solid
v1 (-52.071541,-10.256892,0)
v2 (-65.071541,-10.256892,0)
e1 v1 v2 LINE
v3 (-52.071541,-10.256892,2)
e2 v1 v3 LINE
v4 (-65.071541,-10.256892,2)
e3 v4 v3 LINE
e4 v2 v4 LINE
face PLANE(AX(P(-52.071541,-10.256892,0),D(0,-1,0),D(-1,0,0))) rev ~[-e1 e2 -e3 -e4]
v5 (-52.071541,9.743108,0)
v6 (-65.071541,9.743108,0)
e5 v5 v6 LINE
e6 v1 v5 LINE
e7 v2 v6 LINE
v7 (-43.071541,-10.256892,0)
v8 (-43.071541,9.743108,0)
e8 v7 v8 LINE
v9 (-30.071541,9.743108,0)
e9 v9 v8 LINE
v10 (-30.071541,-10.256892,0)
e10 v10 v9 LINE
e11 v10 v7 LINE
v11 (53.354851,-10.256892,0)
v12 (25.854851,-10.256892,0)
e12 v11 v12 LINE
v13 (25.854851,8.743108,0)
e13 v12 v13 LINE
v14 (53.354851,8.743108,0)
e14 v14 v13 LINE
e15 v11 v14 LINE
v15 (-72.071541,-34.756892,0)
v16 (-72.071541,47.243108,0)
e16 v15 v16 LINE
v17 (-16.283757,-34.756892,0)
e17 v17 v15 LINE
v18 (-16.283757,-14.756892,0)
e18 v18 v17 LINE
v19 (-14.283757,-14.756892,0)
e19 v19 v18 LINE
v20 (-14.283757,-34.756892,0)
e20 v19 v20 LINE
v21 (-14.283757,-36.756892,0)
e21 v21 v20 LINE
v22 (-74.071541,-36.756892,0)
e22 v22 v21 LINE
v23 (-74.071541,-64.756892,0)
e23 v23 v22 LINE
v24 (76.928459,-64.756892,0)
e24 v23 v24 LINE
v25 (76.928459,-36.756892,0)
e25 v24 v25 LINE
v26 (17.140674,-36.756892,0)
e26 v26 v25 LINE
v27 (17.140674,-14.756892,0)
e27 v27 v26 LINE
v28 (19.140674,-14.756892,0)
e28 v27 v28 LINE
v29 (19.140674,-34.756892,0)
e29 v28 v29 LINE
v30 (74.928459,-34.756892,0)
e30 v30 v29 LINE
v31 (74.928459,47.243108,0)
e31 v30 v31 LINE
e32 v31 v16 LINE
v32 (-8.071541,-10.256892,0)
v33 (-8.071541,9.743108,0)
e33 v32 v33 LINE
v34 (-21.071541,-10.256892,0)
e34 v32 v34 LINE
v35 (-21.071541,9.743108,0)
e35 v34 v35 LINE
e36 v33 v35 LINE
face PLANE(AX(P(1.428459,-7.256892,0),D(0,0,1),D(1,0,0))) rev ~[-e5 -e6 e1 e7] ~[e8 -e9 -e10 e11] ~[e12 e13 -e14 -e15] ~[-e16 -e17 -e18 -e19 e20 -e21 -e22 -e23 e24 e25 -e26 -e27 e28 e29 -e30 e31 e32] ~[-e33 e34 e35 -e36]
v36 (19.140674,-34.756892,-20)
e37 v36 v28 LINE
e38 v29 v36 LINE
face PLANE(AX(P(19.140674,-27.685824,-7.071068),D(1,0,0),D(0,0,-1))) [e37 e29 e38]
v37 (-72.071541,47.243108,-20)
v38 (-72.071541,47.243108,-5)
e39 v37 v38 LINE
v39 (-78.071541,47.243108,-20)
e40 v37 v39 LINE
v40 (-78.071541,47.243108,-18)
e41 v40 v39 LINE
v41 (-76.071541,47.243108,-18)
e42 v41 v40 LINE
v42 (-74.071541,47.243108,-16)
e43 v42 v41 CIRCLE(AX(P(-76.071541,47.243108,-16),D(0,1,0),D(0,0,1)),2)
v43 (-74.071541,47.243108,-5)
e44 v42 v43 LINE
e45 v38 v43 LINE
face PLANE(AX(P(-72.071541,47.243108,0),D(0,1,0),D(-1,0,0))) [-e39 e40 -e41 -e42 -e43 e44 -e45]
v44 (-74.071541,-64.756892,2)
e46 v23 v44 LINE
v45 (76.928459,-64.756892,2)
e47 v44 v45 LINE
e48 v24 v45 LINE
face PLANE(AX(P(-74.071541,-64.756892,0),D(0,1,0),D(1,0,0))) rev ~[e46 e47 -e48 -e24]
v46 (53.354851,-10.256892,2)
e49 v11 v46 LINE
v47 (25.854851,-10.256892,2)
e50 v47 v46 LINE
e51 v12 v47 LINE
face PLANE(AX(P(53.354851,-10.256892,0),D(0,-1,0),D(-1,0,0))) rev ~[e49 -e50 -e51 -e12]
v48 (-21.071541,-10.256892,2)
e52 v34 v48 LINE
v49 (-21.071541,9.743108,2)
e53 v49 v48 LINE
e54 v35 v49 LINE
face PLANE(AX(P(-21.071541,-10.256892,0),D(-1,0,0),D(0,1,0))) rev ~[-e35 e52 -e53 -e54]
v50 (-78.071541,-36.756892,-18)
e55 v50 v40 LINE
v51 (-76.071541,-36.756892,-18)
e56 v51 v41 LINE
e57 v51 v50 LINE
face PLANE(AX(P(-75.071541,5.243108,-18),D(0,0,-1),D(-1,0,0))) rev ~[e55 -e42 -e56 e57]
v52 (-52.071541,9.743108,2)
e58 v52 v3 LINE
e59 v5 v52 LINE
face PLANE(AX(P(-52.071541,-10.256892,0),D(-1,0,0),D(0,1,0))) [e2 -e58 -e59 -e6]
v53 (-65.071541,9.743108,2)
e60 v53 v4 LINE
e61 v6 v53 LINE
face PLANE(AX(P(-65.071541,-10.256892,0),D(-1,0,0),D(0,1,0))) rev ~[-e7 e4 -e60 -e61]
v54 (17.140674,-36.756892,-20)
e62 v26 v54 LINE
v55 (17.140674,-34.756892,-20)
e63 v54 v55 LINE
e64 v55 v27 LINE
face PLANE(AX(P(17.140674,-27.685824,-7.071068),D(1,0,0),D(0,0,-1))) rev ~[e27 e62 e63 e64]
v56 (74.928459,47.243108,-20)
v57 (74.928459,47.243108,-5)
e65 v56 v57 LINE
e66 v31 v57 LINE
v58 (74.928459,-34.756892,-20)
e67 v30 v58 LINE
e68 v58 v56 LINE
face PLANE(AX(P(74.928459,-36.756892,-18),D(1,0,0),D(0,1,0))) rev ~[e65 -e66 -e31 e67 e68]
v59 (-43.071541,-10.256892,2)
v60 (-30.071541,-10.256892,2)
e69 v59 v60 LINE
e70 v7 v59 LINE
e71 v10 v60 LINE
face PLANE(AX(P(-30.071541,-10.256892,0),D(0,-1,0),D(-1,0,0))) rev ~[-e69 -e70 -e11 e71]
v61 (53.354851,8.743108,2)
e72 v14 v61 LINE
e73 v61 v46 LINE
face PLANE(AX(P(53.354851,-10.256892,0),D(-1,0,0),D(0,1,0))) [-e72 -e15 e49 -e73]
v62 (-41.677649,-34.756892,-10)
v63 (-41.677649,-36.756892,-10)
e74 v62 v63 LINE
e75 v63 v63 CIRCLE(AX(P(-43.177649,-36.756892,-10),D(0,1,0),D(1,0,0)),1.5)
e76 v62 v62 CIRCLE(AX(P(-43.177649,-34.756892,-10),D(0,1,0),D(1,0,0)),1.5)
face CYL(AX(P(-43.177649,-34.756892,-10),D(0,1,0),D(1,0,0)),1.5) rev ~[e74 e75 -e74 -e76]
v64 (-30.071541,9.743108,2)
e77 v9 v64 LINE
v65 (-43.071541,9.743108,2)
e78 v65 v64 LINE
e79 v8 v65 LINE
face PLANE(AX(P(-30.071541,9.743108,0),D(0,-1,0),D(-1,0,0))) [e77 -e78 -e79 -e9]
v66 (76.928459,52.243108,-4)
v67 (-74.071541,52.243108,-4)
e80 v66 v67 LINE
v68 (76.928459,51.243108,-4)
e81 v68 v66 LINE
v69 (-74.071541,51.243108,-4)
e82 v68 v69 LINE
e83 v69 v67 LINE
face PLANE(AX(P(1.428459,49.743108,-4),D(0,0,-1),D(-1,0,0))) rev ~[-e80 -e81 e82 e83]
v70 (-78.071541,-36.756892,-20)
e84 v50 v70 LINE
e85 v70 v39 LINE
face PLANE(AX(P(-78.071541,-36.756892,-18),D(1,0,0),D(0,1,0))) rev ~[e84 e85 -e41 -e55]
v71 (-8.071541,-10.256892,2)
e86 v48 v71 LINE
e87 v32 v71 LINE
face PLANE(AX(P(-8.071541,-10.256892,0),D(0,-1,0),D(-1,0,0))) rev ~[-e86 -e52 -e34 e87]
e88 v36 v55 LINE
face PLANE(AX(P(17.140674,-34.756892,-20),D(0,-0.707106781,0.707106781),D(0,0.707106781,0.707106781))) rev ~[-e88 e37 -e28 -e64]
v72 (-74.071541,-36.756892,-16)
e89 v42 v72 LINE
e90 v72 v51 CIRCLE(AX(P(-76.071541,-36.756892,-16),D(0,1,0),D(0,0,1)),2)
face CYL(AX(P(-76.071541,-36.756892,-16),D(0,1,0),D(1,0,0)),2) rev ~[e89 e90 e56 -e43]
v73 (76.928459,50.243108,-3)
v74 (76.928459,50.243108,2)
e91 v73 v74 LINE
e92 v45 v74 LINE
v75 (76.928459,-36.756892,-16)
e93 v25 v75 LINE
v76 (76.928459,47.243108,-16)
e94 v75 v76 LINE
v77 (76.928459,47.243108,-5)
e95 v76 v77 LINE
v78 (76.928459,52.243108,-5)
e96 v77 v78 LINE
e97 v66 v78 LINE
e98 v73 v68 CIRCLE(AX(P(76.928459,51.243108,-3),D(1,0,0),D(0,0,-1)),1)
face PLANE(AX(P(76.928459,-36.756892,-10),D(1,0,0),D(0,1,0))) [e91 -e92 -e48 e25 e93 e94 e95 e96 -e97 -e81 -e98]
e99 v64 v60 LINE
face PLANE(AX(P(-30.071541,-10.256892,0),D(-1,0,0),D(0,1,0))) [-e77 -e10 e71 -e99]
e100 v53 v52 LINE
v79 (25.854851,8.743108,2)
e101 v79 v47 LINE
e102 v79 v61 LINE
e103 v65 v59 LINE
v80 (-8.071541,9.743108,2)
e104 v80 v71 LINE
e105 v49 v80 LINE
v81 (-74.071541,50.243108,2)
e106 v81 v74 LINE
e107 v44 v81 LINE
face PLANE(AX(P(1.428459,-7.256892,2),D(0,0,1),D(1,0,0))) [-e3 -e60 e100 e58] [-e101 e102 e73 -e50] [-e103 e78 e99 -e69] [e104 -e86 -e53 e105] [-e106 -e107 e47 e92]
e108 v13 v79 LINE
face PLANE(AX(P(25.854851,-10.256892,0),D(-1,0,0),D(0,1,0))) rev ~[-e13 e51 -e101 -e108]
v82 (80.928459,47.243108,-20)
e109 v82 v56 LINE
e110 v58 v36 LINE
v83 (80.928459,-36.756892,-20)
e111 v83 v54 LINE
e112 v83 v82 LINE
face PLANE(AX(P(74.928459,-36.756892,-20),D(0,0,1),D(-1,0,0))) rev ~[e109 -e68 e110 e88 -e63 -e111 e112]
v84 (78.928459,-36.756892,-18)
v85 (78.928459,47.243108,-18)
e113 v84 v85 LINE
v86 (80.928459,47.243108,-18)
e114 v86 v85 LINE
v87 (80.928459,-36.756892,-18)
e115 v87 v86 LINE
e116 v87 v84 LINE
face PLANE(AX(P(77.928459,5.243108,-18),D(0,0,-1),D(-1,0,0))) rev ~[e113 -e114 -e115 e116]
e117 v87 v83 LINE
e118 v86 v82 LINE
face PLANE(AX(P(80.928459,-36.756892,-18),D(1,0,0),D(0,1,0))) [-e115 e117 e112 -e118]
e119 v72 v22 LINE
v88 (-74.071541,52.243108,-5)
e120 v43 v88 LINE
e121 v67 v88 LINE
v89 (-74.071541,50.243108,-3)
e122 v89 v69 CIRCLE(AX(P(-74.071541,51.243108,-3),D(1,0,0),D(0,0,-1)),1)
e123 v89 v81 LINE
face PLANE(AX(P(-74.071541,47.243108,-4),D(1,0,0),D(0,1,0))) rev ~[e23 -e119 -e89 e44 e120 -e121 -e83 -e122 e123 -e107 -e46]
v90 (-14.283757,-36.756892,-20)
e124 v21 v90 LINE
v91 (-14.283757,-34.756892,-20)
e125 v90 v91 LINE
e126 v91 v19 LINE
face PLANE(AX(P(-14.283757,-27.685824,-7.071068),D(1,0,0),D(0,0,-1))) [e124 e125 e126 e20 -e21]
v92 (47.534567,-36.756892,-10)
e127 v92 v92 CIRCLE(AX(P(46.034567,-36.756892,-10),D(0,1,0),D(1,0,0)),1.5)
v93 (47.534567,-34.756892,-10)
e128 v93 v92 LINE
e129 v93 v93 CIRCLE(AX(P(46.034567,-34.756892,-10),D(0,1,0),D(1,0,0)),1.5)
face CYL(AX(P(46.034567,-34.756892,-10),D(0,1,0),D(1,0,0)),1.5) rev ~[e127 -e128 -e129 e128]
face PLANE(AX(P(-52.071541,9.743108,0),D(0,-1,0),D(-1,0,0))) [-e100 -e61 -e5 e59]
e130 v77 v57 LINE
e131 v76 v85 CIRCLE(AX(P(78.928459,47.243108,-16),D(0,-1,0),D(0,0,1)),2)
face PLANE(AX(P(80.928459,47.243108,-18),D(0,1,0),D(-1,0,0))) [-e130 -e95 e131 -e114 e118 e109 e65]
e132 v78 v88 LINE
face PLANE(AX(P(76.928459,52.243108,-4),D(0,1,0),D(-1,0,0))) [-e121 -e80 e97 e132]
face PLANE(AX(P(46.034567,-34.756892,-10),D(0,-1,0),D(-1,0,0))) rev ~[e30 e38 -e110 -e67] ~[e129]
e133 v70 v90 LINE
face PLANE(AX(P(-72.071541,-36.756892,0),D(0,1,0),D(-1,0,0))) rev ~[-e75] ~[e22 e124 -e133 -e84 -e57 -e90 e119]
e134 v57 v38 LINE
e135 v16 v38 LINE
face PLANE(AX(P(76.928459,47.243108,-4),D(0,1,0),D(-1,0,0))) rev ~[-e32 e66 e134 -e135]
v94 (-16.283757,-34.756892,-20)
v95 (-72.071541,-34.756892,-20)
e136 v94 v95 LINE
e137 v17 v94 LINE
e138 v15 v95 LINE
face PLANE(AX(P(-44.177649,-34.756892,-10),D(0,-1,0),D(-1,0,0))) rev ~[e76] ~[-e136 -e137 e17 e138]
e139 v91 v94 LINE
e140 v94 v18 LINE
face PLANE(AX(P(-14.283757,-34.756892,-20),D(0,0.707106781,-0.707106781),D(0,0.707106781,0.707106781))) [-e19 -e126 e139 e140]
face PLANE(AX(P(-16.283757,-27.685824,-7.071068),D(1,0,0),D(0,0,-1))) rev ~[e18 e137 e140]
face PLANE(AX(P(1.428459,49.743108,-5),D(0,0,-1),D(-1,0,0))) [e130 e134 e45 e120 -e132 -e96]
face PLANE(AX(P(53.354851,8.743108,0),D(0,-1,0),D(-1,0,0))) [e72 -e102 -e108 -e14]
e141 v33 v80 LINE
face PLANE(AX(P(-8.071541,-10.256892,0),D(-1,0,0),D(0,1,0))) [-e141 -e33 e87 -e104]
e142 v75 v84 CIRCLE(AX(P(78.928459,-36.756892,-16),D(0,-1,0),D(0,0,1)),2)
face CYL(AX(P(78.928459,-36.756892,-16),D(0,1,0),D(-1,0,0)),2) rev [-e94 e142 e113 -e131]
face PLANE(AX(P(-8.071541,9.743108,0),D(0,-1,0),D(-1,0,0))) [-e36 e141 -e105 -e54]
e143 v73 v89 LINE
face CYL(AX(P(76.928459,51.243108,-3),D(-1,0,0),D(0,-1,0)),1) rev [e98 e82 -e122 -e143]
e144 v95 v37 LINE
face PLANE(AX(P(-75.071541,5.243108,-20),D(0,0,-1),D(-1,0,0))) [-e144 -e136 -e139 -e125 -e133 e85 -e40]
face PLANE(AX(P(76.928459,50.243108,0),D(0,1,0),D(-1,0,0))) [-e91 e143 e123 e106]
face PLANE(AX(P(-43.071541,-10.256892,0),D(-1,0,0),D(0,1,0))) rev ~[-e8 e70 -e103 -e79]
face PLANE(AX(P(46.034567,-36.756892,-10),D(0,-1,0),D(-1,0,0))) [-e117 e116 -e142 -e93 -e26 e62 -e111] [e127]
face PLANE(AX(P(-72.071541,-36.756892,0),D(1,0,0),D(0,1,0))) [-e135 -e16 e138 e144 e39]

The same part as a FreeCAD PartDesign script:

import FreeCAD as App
import Part
import Sketcher

V = App.Vector
Q = App.Units.Quantity


def edges_at(feature, points):
    """Names of the edges that pass closest to the given points."""
    edges = feature.Shape.Edges
    near = lambda p: min(range(len(edges)), key=lambda i: edges[i].distToShape(Part.Vertex(*p))[0])
    return sorted({f"Edge{near(p) + 1}" for p in points})

doc = App.newDocument("Part")
body = doc.addObject("PartDesign::Body", "Body")

# Sketch on XY plane
sketch1 = body.newObject("Sketcher::SketchObject", "Sketch")
sketch1.AttachmentSupport = (doc.getObject("XY_Plane"), [""])
sketch1.MapMode = "FlatFace"
sketch1.addGeometry(Part.LineSegment(V(-74, 50, 0), V(-74, -65, 0)), False)
sketch1.addGeometry(Part.LineSegment(V(-74, -65, 0), V(77, -65, 0)), False)
sketch1.addGeometry(Part.LineSegment(V(77, -65, 0), V(77, 50, 0)), False)
sketch1.addGeometry(Part.LineSegment(V(77, 50, 0), V(-74, 50, 0)), False)
sketch1.addConstraint(Sketcher.Constraint("Coincident", 0, 2, 1, 1))
sketch1.addConstraint(Sketcher.Constraint("Coincident", 1, 2, 2, 1))
sketch1.addConstraint(Sketcher.Constraint("Coincident", 2, 2, 3, 1))
sketch1.addConstraint(Sketcher.Constraint("Coincident", 3, 2, 0, 1))
sketch1.addConstraint(Sketcher.Constraint("Vertical", 0))
sketch1.addConstraint(Sketcher.Constraint("Horizontal", 1))
sketch1.addConstraint(Sketcher.Constraint("Vertical", 2))
sketch1.addConstraint(Sketcher.Constraint("Horizontal", 3))
sketch1.addConstraint(Sketcher.Constraint("DistanceX", 1, 1, 1, 2, Q("151 mm")))
sketch1.addConstraint(Sketcher.Constraint("DistanceY", 0, 2, 0, 1, Q("115 mm")))
sketch1.addConstraint(Sketcher.Constraint("DistanceX", 0, 2, -1, 1, Q("74.071541 mm")))
sketch1.addConstraint(Sketcher.Constraint("DistanceY", 0, 2, -1, 1, Q("64.756892 mm")))
pad1 = body.newObject("PartDesign::Pad", "Pad")
pad1.Profile = sketch1
pad1.Length = 2

# Sketch on XY plane
sketch2 = body.newObject("Sketcher::SketchObject", "Sketch001")
sketch2.AttachmentSupport = (doc.getObject("XY_Plane"), [""])
sketch2.MapMode = "FlatFace"
sketch2.AttachmentOffset = App.Placement(V(0, 0, 2), App.Rotation())
sketch2.addGeometry(Part.LineSegment(V(-65, -20, 0), V(-65, -40, 0)), False)
sketch2.addGeometry(Part.LineSegment(V(-65, -40, 0), V(-52, -40, 0)), False)
sketch2.addGeometry(Part.LineSegment(V(-52, -40, 0), V(-52, -20, 0)), False)
sketch2.addGeometry(Part.LineSegment(V(-52, -20, 0), V(-65, -20, 0)), False)
sketch2.addGeometry(Part.LineSegment(V(-43, -20, 0), V(-43, -40, 0)), False)
sketch2.addGeometry(Part.LineSegment(V(-43, -40, 0), V(-30, -40, 0)), False)
sketch2.addGeometry(Part.LineSegment(V(-30, -40, 0), V(-30, -20, 0)), False)
sketch2.addGeometry(Part.LineSegment(V(-30, -20, 0), V(-43, -20, 0)), False)
sketch2.addGeometry(Part.LineSegment(V(-21, -20, 0), V(-21, -40, 0)), False)
sketch2.addGeometry(Part.LineSegment(V(-21, -40, 0), V(-8, -40, 0)), False)
sketch2.addGeometry(Part.LineSegment(V(-8, -40, 0), V(-8, -20, 0)), False)
sketch2.addGeometry(Part.LineSegment(V(-8, -20, 0), V(-21, -20, 0)), False)
sketch2.addConstraint(Sketcher.Constraint("Coincident", 0, 2, 1, 1))
sketch2.addConstraint(Sketcher.Constraint("Coincident", 1, 2, 2, 1))
sketch2.addConstraint(Sketcher.Constraint("Coincident", 2, 2, 3, 1))
sketch2.addConstraint(Sketcher.Constraint("Coincident", 3, 2, 0, 1))
sketch2.addConstraint(Sketcher.Constraint("Coincident", 4, 2, 5, 1))
sketch2.addConstraint(Sketcher.Constraint("Coincident", 5, 2, 6, 1))
sketch2.addConstraint(Sketcher.Constraint("Coincident", 6, 2, 7, 1))
sketch2.addConstraint(Sketcher.Constraint("Coincident", 7, 2, 4, 1))
sketch2.addConstraint(Sketcher.Constraint("Coincident", 8, 2, 9, 1))
sketch2.addConstraint(Sketcher.Constraint("Coincident", 9, 2, 10, 1))
sketch2.addConstraint(Sketcher.Constraint("Coincident", 10, 2, 11, 1))
sketch2.addConstraint(Sketcher.Constraint("Coincident", 11, 2, 8, 1))
sketch2.addConstraint(Sketcher.Constraint("Vertical", 0))
sketch2.addConstraint(Sketcher.Constraint("Horizontal", 1))
sketch2.addConstraint(Sketcher.Constraint("Vertical", 2))
sketch2.addConstraint(Sketcher.Constraint("Horizontal", 3))
sketch2.addConstraint(Sketcher.Constraint("Vertical", 4))
sketch2.addConstraint(Sketcher.Constraint("Horizontal", 5))
sketch2.addConstraint(Sketcher.Constraint("Vertical", 6))
sketch2.addConstraint(Sketcher.Constraint("Horizontal", 7))
sketch2.addConstraint(Sketcher.Constraint("Vertical", 8))
sketch2.addConstraint(Sketcher.Constraint("Horizontal", 9))
sketch2.addConstraint(Sketcher.Constraint("Vertical", 10))
sketch2.addConstraint(Sketcher.Constraint("Horizontal", 11))
sketch2.addConstraint(Sketcher.Constraint("Horizontal", 1, 2, 4, 2))
sketch2.addConstraint(Sketcher.Constraint("Horizontal", 3, 2, 6, 2))
sketch2.addConstraint(Sketcher.Constraint("Horizontal", 5, 2, 8, 2))
sketch2.addConstraint(Sketcher.Constraint("Horizontal", 7, 2, 10, 2))
sketch2.addConstraint(Sketcher.Constraint("Equal", 3, 5))
sketch2.addConstraint(Sketcher.Constraint("Equal", 7, 9))
sketch2.addConstraint(Sketcher.Constraint("DistanceX", 1, 1, 1, 2, Q("13 mm")))
sketch2.addConstraint(Sketcher.Constraint("DistanceY", 0, 2, 0, 1, Q("20 mm")))
sketch2.addConstraint(Sketcher.Constraint("DistanceX", 1, 2, 4, 2, Q("9 mm")))
sketch2.addConstraint(Sketcher.Constraint("DistanceX", 5, 2, 8, 2, Q("9 mm")))
sketch2.addConstraint(Sketcher.Constraint("DistanceX", 0, 2, -1, 1, Q("65.071541 mm")))
sketch2.addConstraint(Sketcher.Constraint("DistanceY", 0, 2, -1, 1, Q("39.756892 mm")))
pocket1 = body.newObject("PartDesign::Pocket", "Pocket")
pocket1.Profile = sketch2
pocket1.Length = 2

# Sketch on XY plane
sketch3 = body.newObject("Sketcher::SketchObject", "Sketch002")
sketch3.AttachmentSupport = (doc.getObject("XY_Plane"), [""])
sketch3.MapMode = "FlatFace"
sketch3.AttachmentOffset = App.Placement(V(0, 0, 2), App.Rotation())
sketch3.addGeometry(Part.LineSegment(V(25, -20, 0), V(25, -39, 0)), False)
sketch3.addGeometry(Part.LineSegment(V(25, -39, 0), V(53, -39, 0)), False)
sketch3.addGeometry(Part.LineSegment(V(53, -39, 0), V(53, -20, 0)), False)
sketch3.addGeometry(Part.LineSegment(V(53, -20, 0), V(25, -20, 0)), False)
sketch3.addConstraint(Sketcher.Constraint("Coincident", 0, 2, 1, 1))
sketch3.addConstraint(Sketcher.Constraint("Coincident", 1, 2, 2, 1))
sketch3.addConstraint(Sketcher.Constraint("Coincident", 2, 2, 3, 1))
sketch3.addConstraint(Sketcher.Constraint("Coincident", 3, 2, 0, 1))
sketch3.addConstraint(Sketcher.Constraint("Vertical", 0))
sketch3.addConstraint(Sketcher.Constraint("Horizontal", 1))
sketch3.addConstraint(Sketcher.Constraint("Vertical", 2))
sketch3.addConstraint(Sketcher.Constraint("Horizontal", 3))
sketch3.addConstraint(Sketcher.Constraint("DistanceY", 0, 2, 0, 1, Q("19 mm")))
sketch3.addConstraint(Sketcher.Constraint("DistanceX", 1, 1, 1, 2, Q("27.5 mm")))
sketch3.addConstraint(Sketcher.Constraint("DistanceX", -1, 1, 0, 2, Q("25.478459 mm")))
sketch3.addConstraint(Sketcher.Constraint("DistanceY", 0, 2, -1, 1, Q("39.256892 mm")))
pocket2 = body.newObject("PartDesign::Pocket", "Pocket001")
pocket2.Profile = sketch3
pocket2.Length = 2

# Sketch on XY plane
sketch4 = body.newObject("Sketcher::SketchObject", "Sketch003")
sketch4.AttachmentSupport = (doc.getObject("XY_Plane"), [""])
sketch4.MapMode = "FlatFace"
sketch4.addGeometry(Part.LineSegment(V(76.9, 50.2, 0), V(76.9, 47.2, 0)), False)
sketch4.addGeometry(Part.LineSegment(V(76.9, 47.2, 0), V(-74.1, 47.2, 0)), False)
sketch4.addGeometry(Part.LineSegment(V(-74.1, 47.2, 0), V(-74.1, 50.2, 0)), False)
sketch4.addGeometry(Part.LineSegment(V(-74.1, 50.2, 0), V(76.9, 50.2, 0)), False)
sketch4.addConstraint(Sketcher.Constraint("Coincident", 0, 2, 1, 1))
sketch4.addConstraint(Sketcher.Constraint("Coincident", 1, 2, 2, 1))
sketch4.addConstraint(Sketcher.Constraint("Coincident", 2, 2, 3, 1))
sketch4.addConstraint(Sketcher.Constraint("Coincident", 3, 2, 0, 1))
sketch4.addConstraint(Sketcher.Constraint("Vertical", 0))
sketch4.addConstraint(Sketcher.Constraint("Horizontal", 1))
sketch4.addConstraint(Sketcher.Constraint("Vertical", 2))
sketch4.addConstraint(Sketcher.Constraint("Horizontal", 3))
sketch4.addConstraint(Sketcher.Constraint("DistanceX", 1, 2, 1, 1, Q("151 mm")))
sketch4.addConstraint(Sketcher.Constraint("DistanceY", 0, 2, 0, 1, Q("3 mm")))
sketch4.addConstraint(Sketcher.Constraint("DistanceX", -1, 1, 0, 2, Q("76.928459 mm")))
sketch4.addConstraint(Sketcher.Constraint("DistanceY", -1, 1, 0, 2, Q("47.243108 mm")))
pad2 = body.newObject("PartDesign::Pad", "Pad001")
pad2.Profile = sketch4
pad2.Length = 4
pad2.Reversed = True

# Sketch on XY plane
sketch5 = body.newObject("Sketcher::SketchObject", "Sketch004")
sketch5.AttachmentSupport = (doc.getObject("XY_Plane"), [""])
sketch5.MapMode = "FlatFace"
sketch5.AttachmentOffset = App.Placement(V(0, 0, -4), App.Rotation())
sketch5.addGeometry(Part.LineSegment(V(77, 52, 0), V(77, 47, 0)), False)
sketch5.addGeometry(Part.LineSegment(V(77, 47, 0), V(-74, 47, 0)), False)
sketch5.addGeometry(Part.LineSegment(V(-74, 47, 0), V(-74, 52, 0)), False)
sketch5.addGeometry(Part.LineSegment(V(-74, 52, 0), V(77, 52, 0)), False)
sketch5.addConstraint(Sketcher.Constraint("Coincident", 0, 2, 1, 1))
sketch5.addConstraint(Sketcher.Constraint("Coincident", 1, 2, 2, 1))
sketch5.addConstraint(Sketcher.Constraint("Coincident", 2, 2, 3, 1))
sketch5.addConstraint(Sketcher.Constraint("Coincident", 3, 2, 0, 1))
sketch5.addConstraint(Sketcher.Constraint("Vertical", 0))
sketch5.addConstraint(Sketcher.Constraint("Horizontal", 1))
sketch5.addConstraint(Sketcher.Constraint("Vertical", 2))
sketch5.addConstraint(Sketcher.Constraint("Horizontal", 3))
sketch5.addConstraint(Sketcher.Constraint("DistanceX", 1, 2, 1, 1, Q("151 mm")))
sketch5.addConstraint(Sketcher.Constraint("DistanceY", 0, 2, 0, 1, Q("5 mm")))
sketch5.addConstraint(Sketcher.Constraint("DistanceX", -1, 1, 0, 2, Q("76.928459 mm")))
sketch5.addConstraint(Sketcher.Constraint("DistanceY", -1, 1, 0, 2, Q("47.243108 mm")))
pad3 = body.newObject("PartDesign::Pad", "Pad002")
pad3.Profile = sketch5
pad3.Length = 1
pad3.Reversed = True
doc.recompute()

fillet = body.newObject("PartDesign::Fillet", "Fillet")
fillet.Base = (pad3, edges_at(pad3, [(1.428, 50.243, -4)]))
fillet.Radius = 1

# Sketch on XY plane
sketch6 = body.newObject("Sketcher::SketchObject", "Sketch005")
sketch6.AttachmentSupport = (doc.getObject("XY_Plane"), [""])
sketch6.MapMode = "FlatFace"
sketch6.addGeometry(Part.LineSegment(V(76.9, 47.2, 0), V(76.9, -36.8, 0)), False)
sketch6.addGeometry(Part.LineSegment(V(76.9, -36.8, 0), V(74.9, -36.8, 0)), False)
sketch6.addGeometry(Part.LineSegment(V(74.9, -36.8, 0), V(74.9, 47.2, 0)), False)
sketch6.addGeometry(Part.LineSegment(V(74.9, 47.2, 0), V(76.9, 47.2, 0)), False)
sketch6.addGeometry(Part.LineSegment(V(-72.1, 47.2, 0), V(-72.1, -36.8, 0)), False)
sketch6.addGeometry(Part.LineSegment(V(-72.1, -36.8, 0), V(-74.1, -36.8, 0)), False)
sketch6.addGeometry(Part.LineSegment(V(-74.1, -36.8, 0), V(-74.1, 47.2, 0)), False)
sketch6.addGeometry(Part.LineSegment(V(-74.1, 47.2, 0), V(-72.1, 47.2, 0)), False)
sketch6.addConstraint(Sketcher.Constraint("Coincident", 0, 2, 1, 1))
sketch6.addConstraint(Sketcher.Constraint("Coincident", 1, 2, 2, 1))
sketch6.addConstraint(Sketcher.Constraint("Coincident", 2, 2, 3, 1))
sketch6.addConstraint(Sketcher.Constraint("Coincident", 3, 2, 0, 1))
sketch6.addConstraint(Sketcher.Constraint("Coincident", 4, 2, 5, 1))
sketch6.addConstraint(Sketcher.Constraint("Coincident", 5, 2, 6, 1))
sketch6.addConstraint(Sketcher.Constraint("Coincident", 6, 2, 7, 1))
sketch6.addConstraint(Sketcher.Constraint("Coincident", 7, 2, 4, 1))
sketch6.addConstraint(Sketcher.Constraint("Vertical", 0))
sketch6.addConstraint(Sketcher.Constraint("Horizontal", 1))
sketch6.addConstraint(Sketcher.Constraint("Vertical", 2))
sketch6.addConstraint(Sketcher.Constraint("Horizontal", 3))
sketch6.addConstraint(Sketcher.Constraint("Vertical", 4))
sketch6.addConstraint(Sketcher.Constraint("Horizontal", 5))
sketch6.addConstraint(Sketcher.Constraint("Vertical", 6))
sketch6.addConstraint(Sketcher.Constraint("Horizontal", 7))
sketch6.addConstraint(Sketcher.Constraint("Horizontal", 1, 2, 4, 2))
sketch6.addConstraint(Sketcher.Constraint("Horizontal", 3, 2, 6, 2))
sketch6.addConstraint(Sketcher.Constraint("Equal", 3, 5))
sketch6.addConstraint(Sketcher.Constraint("DistanceX", 1, 2, 1, 1, Q("2 mm")))
sketch6.addConstraint(Sketcher.Constraint("DistanceY", 0, 2, 0, 1, Q("84 mm")))
sketch6.addConstraint(Sketcher.Constraint("DistanceX", 4, 2, 1, 2, Q("147 mm")))
sketch6.addConstraint(Sketcher.Constraint("DistanceX", -1, 1, 0, 2, Q("76.928459 mm")))
sketch6.addConstraint(Sketcher.Constraint("DistanceY", 0, 2, -1, 1, Q("36.756892 mm")))
pad4 = body.newObject("PartDesign::Pad", "Pad003")
pad4.Profile = sketch6
pad4.Length = 10
pad4.Reversed = True

# Sketch on XY plane
sketch7 = body.newObject("Sketcher::SketchObject", "Sketch006")
sketch7.AttachmentSupport = (doc.getObject("XY_Plane"), [""])
sketch7.MapMode = "FlatFace"
sketch7.addGeometry(Part.LineSegment(V(53, 9, 0), V(53, -10, 0)), False)
sketch7.addGeometry(Part.LineSegment(V(53, -10, 0), V(26, -10, 0)), False)
sketch7.addGeometry(Part.LineSegment(V(26, -10, 0), V(26, 9, 0)), False)
sketch7.addGeometry(Part.LineSegment(V(26, 9, 0), V(53, 9, 0)), False)
sketch7.addGeometry(Part.LineSegment(V(-8, 10, 0), V(-8, -10, 0)), False)
sketch7.addGeometry(Part.LineSegment(V(-8, -10, 0), V(-21, -10, 0)), False)
sketch7.addGeometry(Part.LineSegment(V(-21, -10, 0), V(-21, 10, 0)), False)
sketch7.addGeometry(Part.LineSegment(V(-21, 10, 0), V(-8, 10, 0)), False)
sketch7.addGeometry(Part.LineSegment(V(-30, 10, 0), V(-30, -10, 0)), False)
sketch7.addGeometry(Part.LineSegment(V(-30, -10, 0), V(-43, -10, 0)), False)
sketch7.addGeometry(Part.LineSegment(V(-43, -10, 0), V(-43, 10, 0)), False)
sketch7.addGeometry(Part.LineSegment(V(-43, 10, 0), V(-30, 10, 0)), False)
sketch7.addGeometry(Part.LineSegment(V(-52, 10, 0), V(-52, -10, 0)), False)
sketch7.addGeometry(Part.LineSegment(V(-52, -10, 0), V(-65, -10, 0)), False)
sketch7.addGeometry(Part.LineSegment(V(-65, -10, 0), V(-65, 10, 0)), False)
sketch7.addGeometry(Part.LineSegment(V(-65, 10, 0), V(-52, 10, 0)), False)
sketch7.addConstraint(Sketcher.Constraint("Coincident", 0, 2, 1, 1))
sketch7.addConstraint(Sketcher.Constraint("Coincident", 1, 2, 2, 1))
sketch7.addConstraint(Sketcher.Constraint("Coincident", 2, 2, 3, 1))
sketch7.addConstraint(Sketcher.Constraint("Coincident", 3, 2, 0, 1))
sketch7.addConstraint(Sketcher.Constraint("Coincident", 4, 2, 5, 1))
sketch7.addConstraint(Sketcher.Constraint("Coincident", 5, 2, 6, 1))
sketch7.addConstraint(Sketcher.Constraint("Coincident", 6, 2, 7, 1))
sketch7.addConstraint(Sketcher.Constraint("Coincident", 7, 2, 4, 1))
sketch7.addConstraint(Sketcher.Constraint("Coincident", 8, 2, 9, 1))
sketch7.addConstraint(Sketcher.Constraint("Coincident", 9, 2, 10, 1))
sketch7.addConstraint(Sketcher.Constraint("Coincident", 10, 2, 11, 1))
sketch7.addConstraint(Sketcher.Constraint("Coincident", 11, 2, 8, 1))
sketch7.addConstraint(Sketcher.Constraint("Coincident", 12, 2, 13, 1))
sketch7.addConstraint(Sketcher.Constraint("Coincident", 13, 2, 14, 1))
sketch7.addConstraint(Sketcher.Constraint("Coincident", 14, 2, 15, 1))
sketch7.addConstraint(Sketcher.Constraint("Coincident", 15, 2, 12, 1))
sketch7.addConstraint(Sketcher.Constraint("Vertical", 0))
sketch7.addConstraint(Sketcher.Constraint("Horizontal", 1))
sketch7.addConstraint(Sketcher.Constraint("Vertical", 2))
sketch7.addConstraint(Sketcher.Constraint("Horizontal", 3))
sketch7.addConstraint(Sketcher.Constraint("Vertical", 4))
sketch7.addConstraint(Sketcher.Constraint("Horizontal", 5))
sketch7.addConstraint(Sketcher.Constraint("Vertical", 6))
sketch7.addConstraint(Sketcher.Constraint("Horizontal", 7))
sketch7.addConstraint(Sketcher.Constraint("Vertical", 8))
sketch7.addConstraint(Sketcher.Constraint("Horizontal", 9))
sketch7.addConstraint(Sketcher.Constraint("Vertical", 10))
sketch7.addConstraint(Sketcher.Constraint("Horizontal", 11))
sketch7.addConstraint(Sketcher.Constraint("Vertical", 12))
sketch7.addConstraint(Sketcher.Constraint("Horizontal", 13))
sketch7.addConstraint(Sketcher.Constraint("Vertical", 14))
sketch7.addConstraint(Sketcher.Constraint("Horizontal", 15))
sketch7.addConstraint(Sketcher.Constraint("Horizontal", 1, 2, 4, 2))
sketch7.addConstraint(Sketcher.Constraint("Horizontal", 5, 2, 8, 2))
sketch7.addConstraint(Sketcher.Constraint("Horizontal", 7, 2, 10, 2))
sketch7.addConstraint(Sketcher.Constraint("Horizontal", 9, 2, 12, 2))
sketch7.addConstraint(Sketcher.Constraint("Horizontal", 11, 2, 14, 2))
sketch7.addConstraint(Sketcher.Constraint("Equal", 7, 9))
sketch7.addConstraint(Sketcher.Constraint("Equal", 11, 13))
sketch7.addConstraint(Sketcher.Constraint("DistanceX", 5, 2, 5, 1, Q("13 mm")))
sketch7.addConstraint(Sketcher.Constraint("DistanceY", 0, 2, 0, 1, Q("19 mm")))
sketch7.addConstraint(Sketcher.Constraint("DistanceY", 4, 2, 4, 1, Q("20 mm")))
sketch7.addConstraint(Sketcher.Constraint("DistanceX", 1, 2, 1, 1, Q("27.5 mm")))
sketch7.addConstraint(Sketcher.Constraint("DistanceX", 8, 2, 5, 2, Q("9 mm")))
sketch7.addConstraint(Sketcher.Constraint("DistanceX", 12, 2, 9, 2, Q("9 mm")))
sketch7.addConstraint(Sketcher.Constraint("DistanceX", -1, 1, 0, 2, Q("53.354851 mm")))
sketch7.addConstraint(Sketcher.Constraint("DistanceX", 4, 2, -1, 1, Q("8.071541 mm")))
sketch7.addConstraint(Sketcher.Constraint("DistanceY", 0, 2, -1, 1, Q("10.256892 mm")))
pocket3 = body.newObject("PartDesign::Pocket", "Pocket002")
pocket3.Profile = sketch7
pocket3.Length = 10
pocket3.Reversed = True

# Sketch on XY plane
sketch8 = body.newObject("Sketcher::SketchObject", "Sketch007")
sketch8.AttachmentSupport = (doc.getObject("XY_Plane"), [""])
sketch8.MapMode = "FlatFace"
sketch8.addGeometry(Part.LineSegment(V(58, -17, 0), V(58, -44, 0)), False)
sketch8.addGeometry(Part.LineSegment(V(58, -44, 0), V(-68, -44, 0)), False)
sketch8.addGeometry(Part.LineSegment(V(-68, -44, 0), V(-68, -17, 0)), False)
sketch8.addGeometry(Part.LineSegment(V(-68, -17, 0), V(58, -17, 0)), False)
sketch8.addConstraint(Sketcher.Constraint("Coincident", 0, 2, 1, 1))
sketch8.addConstraint(Sketcher.Constraint("Coincident", 1, 2, 2, 1))
sketch8.addConstraint(Sketcher.Constraint("Coincident", 2, 2, 3, 1))
sketch8.addConstraint(Sketcher.Constraint("Coincident", 3, 2, 0, 1))
sketch8.addConstraint(Sketcher.Constraint("Vertical", 0))
sketch8.addConstraint(Sketcher.Constraint("Horizontal", 1))
sketch8.addConstraint(Sketcher.Constraint("Vertical", 2))
sketch8.addConstraint(Sketcher.Constraint("Horizontal", 3))
sketch8.addConstraint(Sketcher.Constraint("DistanceX", 1, 2, 1, 1, Q("126.512621 mm")))
sketch8.addConstraint(Sketcher.Constraint("DistanceY", 0, 2, 0, 1, Q("26.913834 mm")))
sketch8.addConstraint(Sketcher.Constraint("DistanceX", -1, 1, 0, 2, Q("58.068479 mm")))
sketch8.addConstraint(Sketcher.Constraint("DistanceY", 0, 2, -1, 1, Q("43.607162 mm")))
pad5 = body.newObject("PartDesign::Pad", "Pad004")
pad5.Profile = sketch8
pad5.Length = 2

# Sketch on XY plane
sketch9 = body.newObject("Sketcher::SketchObject", "Sketch008")
sketch9.AttachmentSupport = (doc.getObject("XY_Plane"), [""])
sketch9.MapMode = "FlatFace"
sketch9.AttachmentOffset = App.Placement(V(0, 0, -10), App.Rotation())
sketch9.addGeometry(Part.LineSegment(V(76.9, 47.2, 0), V(76.9, -36.8, 0)), False)
sketch9.addGeometry(Part.LineSegment(V(76.9, -36.8, 0), V(74.9, -36.8, 0)), False)
sketch9.addGeometry(Part.LineSegment(V(74.9, -36.8, 0), V(74.9, 47.2, 0)), False)
sketch9.addGeometry(Part.LineSegment(V(74.9, 47.2, 0), V(76.9, 47.2, 0)), False)
sketch9.addGeometry(Part.LineSegment(V(-72.1, 47.2, 0), V(-72.1, -36.8, 0)), False)
sketch9.addGeometry(Part.LineSegment(V(-72.1, -36.8, 0), V(-74.1, -36.8, 0)), False)
sketch9.addGeometry(Part.LineSegment(V(-74.1, -36.8, 0), V(-74.1, 47.2, 0)), False)
sketch9.addGeometry(Part.LineSegment(V(-74.1, 47.2, 0), V(-72.1, 47.2, 0)), False)
sketch9.addConstraint(Sketcher.Constraint("Coincident", 0, 2, 1, 1))
sketch9.addConstraint(Sketcher.Constraint("Coincident", 1, 2, 2, 1))
sketch9.addConstraint(Sketcher.Constraint("Coincident", 2, 2, 3, 1))
sketch9.addConstraint(Sketcher.Constraint("Coincident", 3, 2, 0, 1))
sketch9.addConstraint(Sketcher.Constraint("Coincident", 4, 2, 5, 1))
sketch9.addConstraint(Sketcher.Constraint("Coincident", 5, 2, 6, 1))
sketch9.addConstraint(Sketcher.Constraint("Coincident", 6, 2, 7, 1))
sketch9.addConstraint(Sketcher.Constraint("Coincident", 7, 2, 4, 1))
sketch9.addConstraint(Sketcher.Constraint("Vertical", 0))
sketch9.addConstraint(Sketcher.Constraint("Horizontal", 1))
sketch9.addConstraint(Sketcher.Constraint("Vertical", 2))
sketch9.addConstraint(Sketcher.Constraint("Horizontal", 3))
sketch9.addConstraint(Sketcher.Constraint("Vertical", 4))
sketch9.addConstraint(Sketcher.Constraint("Horizontal", 5))
sketch9.addConstraint(Sketcher.Constraint("Vertical", 6))
sketch9.addConstraint(Sketcher.Constraint("Horizontal", 7))
sketch9.addConstraint(Sketcher.Constraint("Horizontal", 1, 2, 4, 2))
sketch9.addConstraint(Sketcher.Constraint("Horizontal", 3, 2, 6, 2))
sketch9.addConstraint(Sketcher.Constraint("Equal", 3, 5))
sketch9.addConstraint(Sketcher.Constraint("DistanceX", 1, 2, 1, 1, Q("2 mm")))
sketch9.addConstraint(Sketcher.Constraint("DistanceY", 0, 2, 0, 1, Q("84 mm")))
sketch9.addConstraint(Sketcher.Constraint("DistanceX", 4, 2, 1, 2, Q("147 mm")))
sketch9.addConstraint(Sketcher.Constraint("DistanceX", -1, 1, 0, 2, Q("76.928459 mm")))
sketch9.addConstraint(Sketcher.Constraint("DistanceY", 0, 2, -1, 1, Q("36.756892 mm")))
pad6 = body.newObject("PartDesign::Pad", "Pad005")
pad6.Profile = sketch9
pad6.Length = 8
pad6.Reversed = True

# Sketch on XY plane
sketch10 = body.newObject("Sketcher::SketchObject", "Sketch009")
sketch10.AttachmentSupport = (doc.getObject("XY_Plane"), [""])
sketch10.MapMode = "FlatFace"
sketch10.AttachmentOffset = App.Placement(V(0, 0, -18), App.Rotation())
sketch10.addGeometry(Part.LineSegment(V(81, 47, 0), V(81, -37, 0)), False)
sketch10.addGeometry(Part.LineSegment(V(81, -37, 0), V(75, -37, 0)), False)
sketch10.addGeometry(Part.LineSegment(V(75, -37, 0), V(75, 47, 0)), False)
sketch10.addGeometry(Part.LineSegment(V(75, 47, 0), V(81, 47, 0)), False)
sketch10.addGeometry(Part.LineSegment(V(-72, 47, 0), V(-72, -37, 0)), False)
sketch10.addGeometry(Part.LineSegment(V(-72, -37, 0), V(-78, -37, 0)), False)
sketch10.addGeometry(Part.LineSegment(V(-78, -37, 0), V(-78, 47, 0)), False)
sketch10.addGeometry(Part.LineSegment(V(-78, 47, 0), V(-72, 47, 0)), False)
sketch10.addConstraint(Sketcher.Constraint("Coincident", 0, 2, 1, 1))
sketch10.addConstraint(Sketcher.Constraint("Coincident", 1, 2, 2, 1))
sketch10.addConstraint(Sketcher.Constraint("Coincident", 2, 2, 3, 1))
sketch10.addConstraint(Sketcher.Constraint("Coincident", 3, 2, 0, 1))
sketch10.addConstraint(Sketcher.Constraint("Coincident", 4, 2, 5, 1))
sketch10.addConstraint(Sketcher.Constraint("Coincident", 5, 2, 6, 1))
sketch10.addConstraint(Sketcher.Constraint("Coincident", 6, 2, 7, 1))
sketch10.addConstraint(Sketcher.Constraint("Coincident", 7, 2, 4, 1))
sketch10.addConstraint(Sketcher.Constraint("Vertical", 0))
sketch10.addConstraint(Sketcher.Constraint("Horizontal", 1))
sketch10.addConstraint(Sketcher.Constraint("Vertical", 2))
sketch10.addConstraint(Sketcher.Constraint("Horizontal", 3))
sketch10.addConstraint(Sketcher.Constraint("Vertical", 4))
sketch10.addConstraint(Sketcher.Constraint("Horizontal", 5))
sketch10.addConstraint(Sketcher.Constraint("Vertical", 6))
sketch10.addConstraint(Sketcher.Constraint("Horizontal", 7))
sketch10.addConstraint(Sketcher.Constraint("Horizontal", 1, 2, 4, 2))
sketch10.addConstraint(Sketcher.Constraint("Horizontal", 3, 2, 6, 2))
sketch10.addConstraint(Sketcher.Constraint("Equal", 3, 5))
sketch10.addConstraint(Sketcher.Constraint("DistanceX", 1, 2, 1, 1, Q("6 mm")))
sketch10.addConstraint(Sketcher.Constraint("DistanceY", 0, 2, 0, 1, Q("84 mm")))
sketch10.addConstraint(Sketcher.Constraint("DistanceX", 4, 2, 1, 2, Q("147 mm")))
sketch10.addConstraint(Sketcher.Constraint("DistanceX", -1, 1, 0, 2, Q("80.928459 mm")))
sketch10.addConstraint(Sketcher.Constraint("DistanceY", 0, 2, -1, 1, Q("36.756892 mm")))
pad7 = body.newObject("PartDesign::Pad", "Pad006")
pad7.Profile = sketch10
pad7.Length = 2
pad7.Reversed = True
doc.recompute()

fillet2 = body.newObject("PartDesign::Fillet", "Fillet001")
fillet2.Base = (pad7, edges_at(pad7, [(76.928, 5.243, -18)]))
fillet2.Radius = 2
doc.recompute()

fillet3 = body.newObject("PartDesign::Fillet", "Fillet002")
fillet3.Base = (fillet2, edges_at(fillet2, [(-74.072, 5.243, -18)]))
fillet3.Radius = 2

# Sketch on XZ plane
sketch11 = body.newObject("Sketcher::SketchObject", "Sketch010")
sketch11.AttachmentSupport = (doc.getObject("XZ_Plane"), [""])
sketch11.MapMode = "FlatFace"
sketch11.AttachmentOffset = App.Placement(V(0, 0, 36.756892), App.Rotation())
sketch11.addGeometry(Part.LineSegment(V(75, -20, 0), V(75, 0, 0)), False)
sketch11.addGeometry(Part.LineSegment(V(75, 0, 0), V(17, 0, 0)), False)
sketch11.addGeometry(Part.LineSegment(V(17, 0, 0), V(17, -20, 0)), False)
sketch11.addGeometry(Part.LineSegment(V(17, -20, 0), V(75, -20, 0)), False)
sketch11.addGeometry(Part.LineSegment(V(-14, -20, 0), V(-14, 0, 0)), False)
sketch11.addGeometry(Part.LineSegment(V(-14, 0, 0), V(-74, 0, 0)), False)
sketch11.addGeometry(Part.LineSegment(V(-74, 0, 0), V(-74, -20, 0)), False)
sketch11.addGeometry(Part.LineSegment(V(-74, -20, 0), V(-14, -20, 0)), False)
sketch11.addConstraint(Sketcher.Constraint("Coincident", 0, 2, 1, 1))
sketch11.addConstraint(Sketcher.Constraint("Coincident", 1, 2, 2, 1))
sketch11.addConstraint(Sketcher.Constraint("Coincident", 2, 2, 3, 1))
sketch11.addConstraint(Sketcher.Constraint("Coincident", 3, 2, 0, 1))
sketch11.addConstraint(Sketcher.Constraint("Coincident", 4, 2, 5, 1))
sketch11.addConstraint(Sketcher.Constraint("Coincident", 5, 2, 6, 1))
sketch11.addConstraint(Sketcher.Constraint("Coincident", 6, 2, 7, 1))
sketch11.addConstraint(Sketcher.Constraint("Coincident", 7, 2, 4, 1))
sketch11.addConstraint(Sketcher.Constraint("Vertical", 0))
sketch11.addConstraint(Sketcher.Constraint("Horizontal", 1))
sketch11.addConstraint(Sketcher.Constraint("Vertical", 2))
sketch11.addConstraint(Sketcher.Constraint("Horizontal", 3))
sketch11.addConstraint(Sketcher.Constraint("Vertical", 4))
sketch11.addConstraint(Sketcher.Constraint("Horizontal", 5))
sketch11.addConstraint(Sketcher.Constraint("Vertical", 6))
sketch11.addConstraint(Sketcher.Constraint("Horizontal", 7))
sketch11.addConstraint(Sketcher.Constraint("PointOnObject", 0, 2, -1))
sketch11.addConstraint(Sketcher.Constraint("PointOnObject", 4, 2, -1))
sketch11.addConstraint(Sketcher.Constraint("Horizontal", 3, 2, 6, 2))
sketch11.addConstraint(Sketcher.Constraint("DistanceY", 0, 1, 0, 2, Q("20 mm")))
sketch11.addConstraint(Sketcher.Constraint("DistanceX", 5, 2, 0, 2, Q("149 mm")))
sketch11.addConstraint(Sketcher.Constraint("DistanceX", 1, 2, 1, 1, Q("57.787784 mm")))
sketch11.addConstraint(Sketcher.Constraint("DistanceX", 5, 2, 5, 1, Q("59.787784 mm")))
sketch11.addConstraint(Sketcher.Constraint("DistanceX", -1, 1, 0, 2, Q("74.928459 mm")))
pad8 = body.newObject("PartDesign::Pad", "Pad007")
pad8.Profile = sketch11
pad8.Length = 2
pad8.Reversed = True

# Sketch on XZ plane
sketch12 = body.newObject("Sketcher::SketchObject", "Sketch011")
sketch12.AttachmentSupport = (doc.getObject("XZ_Plane"), [""])
sketch12.MapMode = "FlatFace"
sketch12.AttachmentOffset = App.Placement(V(0, 0, 34.756892), App.Rotation())
sketch12.addGeometry(Part.Circle(V(46, -10, 0), V(0, 0, 1), 1.5), False)
sketch12.addGeometry(Part.Circle(V(-43.2, -10, 0), V(0, 0, 1), 1.5), False)
sketch12.addConstraint(Sketcher.Constraint("Equal", 0, 1))
sketch12.addConstraint(Sketcher.Constraint("Horizontal", 0, 3, 1, 3))
sketch12.addConstraint(Sketcher.Constraint("Diameter", 0, Q("3 mm")))
sketch12.addConstraint(Sketcher.Constraint("DistanceY", 0, 3, -1, 1, Q("10 mm")))
sketch12.addConstraint(Sketcher.Constraint("DistanceX", 1, 3, -1, 1, Q("43.177649 mm")))
sketch12.addConstraint(Sketcher.Constraint("DistanceX", -1, 1, 0, 3, Q("46.034567 mm")))
pocket4 = body.newObject("PartDesign::Pocket", "Pocket003")
pocket4.Profile = sketch12
pocket4.Length = 2
pocket4.Reversed = True

# Sketch on YZ plane
sketch13 = body.newObject("Sketcher::SketchObject", "Sketch012")
sketch13.AttachmentSupport = (doc.getObject("YZ_Plane"), [""])
sketch13.MapMode = "FlatFace"
sketch13.AttachmentOffset = App.Placement(V(0, 0, 17.140674), App.Rotation())
sketch13.addGeometry(Part.LineSegment(V(-35, -20, 0), V(-35, 0, 0)), False)
sketch13.addGeometry(Part.LineSegment(V(-35, 0, 0), V(-15, 0, 0)), False)
sketch13.addGeometry(Part.LineSegment(V(-15, 0, 0), V(-35, -20, 0)), False)
sketch13.addConstraint(Sketcher.Constraint("Coincident", 0, 2, 1, 1))
sketch13.addConstraint(Sketcher.Constraint("Coincident", 1, 2, 2, 1))
sketch13.addConstraint(Sketcher.Constraint("Coincident", 2, 2, 0, 1))
sketch13.addConstraint(Sketcher.Constraint("Vertical", 0))
sketch13.addConstraint(Sketcher.Constraint("Horizontal", 1))
sketch13.addConstraint(Sketcher.Constraint("PointOnObject", 0, 2, -1))
sketch13.addConstraint(Sketcher.Constraint("Equal", 1, 0))
sketch13.addConstraint(Sketcher.Constraint("DistanceX", 1, 1, 1, 2, Q("20 mm")))
sketch13.addConstraint(Sketcher.Constraint("DistanceX", 0, 2, -1, 1, Q("34.756892 mm")))
pad9 = body.newObject("PartDesign::Pad", "Pad008")
pad9.Profile = sketch13
pad9.Length = 2

# Sketch on YZ plane
sketch14 = body.newObject("Sketcher::SketchObject", "Sketch013")
sketch14.AttachmentSupport = (doc.getObject("YZ_Plane"), [""])
sketch14.MapMode = "FlatFace"
sketch14.AttachmentOffset = App.Placement(V(0, 0, -14.283757), App.Rotation())
sketch14.addGeometry(Part.LineSegment(V(-35, 0, 0), V(-35, -20, 0)), False)
sketch14.addGeometry(Part.LineSegment(V(-35, -20, 0), V(-15, 0, 0)), False)
sketch14.addGeometry(Part.LineSegment(V(-15, 0, 0), V(-35, 0, 0)), False)
sketch14.addConstraint(Sketcher.Constraint("Coincident", 0, 2, 1, 1))
sketch14.addConstraint(Sketcher.Constraint("Coincident", 1, 2, 2, 1))
sketch14.addConstraint(Sketcher.Constraint("Coincident", 2, 2, 0, 1))
sketch14.addConstraint(Sketcher.Constraint("Vertical", 0))
sketch14.addConstraint(Sketcher.Constraint("Horizontal", 2))
sketch14.addConstraint(Sketcher.Constraint("PointOnObject", 1, 2, -1))
sketch14.addConstraint(Sketcher.Constraint("Equal", 2, 0))
sketch14.addConstraint(Sketcher.Constraint("DistanceX", 2, 2, 2, 1, Q("20 mm")))
sketch14.addConstraint(Sketcher.Constraint("DistanceX", 0, 2, -1, 1, Q("34.756892 mm")))
pad10 = body.newObject("PartDesign::Pad", "Pad009")
pad10.Profile = sketch14
pad10.Length = 2
pad10.Reversed = True

doc.recompute()
